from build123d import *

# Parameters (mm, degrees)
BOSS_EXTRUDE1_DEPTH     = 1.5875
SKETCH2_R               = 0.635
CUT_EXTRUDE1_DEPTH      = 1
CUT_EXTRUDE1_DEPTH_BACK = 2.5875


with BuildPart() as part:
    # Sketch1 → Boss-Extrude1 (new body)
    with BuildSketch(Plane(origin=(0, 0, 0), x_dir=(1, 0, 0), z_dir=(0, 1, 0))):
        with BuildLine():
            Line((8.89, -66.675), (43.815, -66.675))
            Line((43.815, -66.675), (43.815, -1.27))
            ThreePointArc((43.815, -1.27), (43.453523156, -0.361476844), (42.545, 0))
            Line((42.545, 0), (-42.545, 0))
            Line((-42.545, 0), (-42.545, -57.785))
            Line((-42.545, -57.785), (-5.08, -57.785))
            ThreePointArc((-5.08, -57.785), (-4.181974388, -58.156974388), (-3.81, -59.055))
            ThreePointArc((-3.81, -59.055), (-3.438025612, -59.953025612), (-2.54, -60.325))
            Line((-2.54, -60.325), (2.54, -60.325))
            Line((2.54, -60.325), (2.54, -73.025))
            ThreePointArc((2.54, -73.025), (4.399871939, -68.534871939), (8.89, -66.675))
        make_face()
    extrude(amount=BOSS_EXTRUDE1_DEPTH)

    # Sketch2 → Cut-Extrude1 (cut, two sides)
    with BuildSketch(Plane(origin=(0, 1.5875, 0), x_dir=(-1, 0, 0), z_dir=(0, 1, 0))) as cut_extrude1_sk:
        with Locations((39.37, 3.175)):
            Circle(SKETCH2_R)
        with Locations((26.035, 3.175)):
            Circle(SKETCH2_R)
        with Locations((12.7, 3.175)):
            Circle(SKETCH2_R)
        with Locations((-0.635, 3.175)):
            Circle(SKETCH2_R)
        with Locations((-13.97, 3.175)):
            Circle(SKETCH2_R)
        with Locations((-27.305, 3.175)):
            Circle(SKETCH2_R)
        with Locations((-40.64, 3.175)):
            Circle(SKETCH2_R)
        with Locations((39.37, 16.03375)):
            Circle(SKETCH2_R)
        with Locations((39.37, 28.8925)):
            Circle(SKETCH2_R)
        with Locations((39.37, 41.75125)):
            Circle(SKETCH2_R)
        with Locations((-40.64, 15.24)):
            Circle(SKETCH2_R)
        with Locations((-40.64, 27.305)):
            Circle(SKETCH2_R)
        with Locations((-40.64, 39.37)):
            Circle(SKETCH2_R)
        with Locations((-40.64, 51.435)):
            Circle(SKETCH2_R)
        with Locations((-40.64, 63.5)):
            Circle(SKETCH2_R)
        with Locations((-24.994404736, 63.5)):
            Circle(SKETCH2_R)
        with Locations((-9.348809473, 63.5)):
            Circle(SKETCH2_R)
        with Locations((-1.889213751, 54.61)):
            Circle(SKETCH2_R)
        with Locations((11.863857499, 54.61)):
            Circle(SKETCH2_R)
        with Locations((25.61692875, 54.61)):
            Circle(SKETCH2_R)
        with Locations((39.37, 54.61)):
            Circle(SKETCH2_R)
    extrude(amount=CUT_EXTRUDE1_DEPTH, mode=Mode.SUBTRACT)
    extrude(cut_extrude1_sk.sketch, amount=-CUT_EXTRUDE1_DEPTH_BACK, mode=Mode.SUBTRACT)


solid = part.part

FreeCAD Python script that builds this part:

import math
import FreeCAD as App
import Part
import Sketcher
Q = App.Units.Quantity

doc = App.newDocument("Part")
body = doc.addObject("PartDesign::Body", "Body")

sketch1 = body.newObject("Sketcher::SketchObject", "Sketch")
sketch1.AttachmentSupport = (doc.getObject("XZ_Plane"), [""])
sketch1.MapMode = "FlatFace"
sketch1.addGeometry(Part.LineSegment(App.Vector(8.9, 66.7, 0), App.Vector(43.8, 66.7, 0)), False)
sketch1.addGeometry(Part.LineSegment(App.Vector(43.8, 66.7, 0), App.Vector(43.8, 1.3, 0)), False)
sketch1.addGeometry(Part.ArcOfCircle(Part.Circle(App.Vector(42.6, 1.2, 0), App.Vector(0, 0, 1), 1.2), math.radians(-92), math.radians(2)), False)
sketch1.addGeometry(Part.LineSegment(App.Vector(42.5, 0, 0), App.Vector(-42.5, 0, 0)), False)
sketch1.addGeometry(Part.LineSegment(App.Vector(-42.5, 0, 0), App.Vector(-42.5, 57.8, 0)), False)
sketch1.addGeometry(Part.LineSegment(App.Vector(-42.5, 57.8, 0), App.Vector(-5.1, 57.8, 0)), False)
sketch1.addGeometry(Part.ArcOfCircle(Part.Circle(App.Vector(-5.1, 59.1, 0), App.Vector(0, 0, 1), 1.3), math.radians(-90), math.radians(0)), False)
sketch1.addGeometry(Part.ArcOfCircle(Part.Circle(App.Vector(-2.5, 59.1, 0), App.Vector(0, 0, 1), 1.3), math.radians(90), math.radians(180)), False)
sketch1.addGeometry(Part.LineSegment(App.Vector(-2.5, 60.3, 0), App.Vector(2.5, 60.3, 0)), False)
sketch1.addGeometry(Part.LineSegment(App.Vector(2.5, 60.3, 0), App.Vector(2.5, 73, 0)), False)
sketch1.addGeometry(Part.ArcOfCircle(Part.Circle(App.Vector(8.9, 73, 0), App.Vector(0, 0, 1), 6.3), math.radians(180), math.radians(270)), False)
sketch1.addConstraint(Sketcher.Constraint("Coincident", 0, 2, 1, 1))
sketch1.addConstraint(Sketcher.Constraint("Coincident", 1, 2, 2, 2))
sketch1.addConstraint(Sketcher.Constraint("Coincident", 2, 1, 3, 1))
sketch1.addConstraint(Sketcher.Constraint("Coincident", 3, 2, 4, 1))
sketch1.addConstraint(Sketcher.Constraint("Coincident", 4, 2, 5, 1))
sketch1.addConstraint(Sketcher.Constraint("Tangent", 5, 2, 6, 1))
sketch1.addConstraint(Sketcher.Constraint("Tangent", 6, 2, 7, 2))
sketch1.addConstraint(Sketcher.Constraint("Tangent", 7, 1, 8, 1))
sketch1.addConstraint(Sketcher.Constraint("Coincident", 8, 2, 9, 1))
sketch1.addConstraint(Sketcher.Constraint("Tangent", 9, 2, 10, 1))
sketch1.addConstraint(Sketcher.Constraint("Tangent", 10, 2, 0, 1))
sketch1.addConstraint(Sketcher.Constraint("Horizontal", 0))
sketch1.addConstraint(Sketcher.Constraint("Vertical", 1))
sketch1.addConstraint(Sketcher.Constraint("Horizontal", 3))
sketch1.addConstraint(Sketcher.Constraint("Vertical", 4))
sketch1.addConstraint(Sketcher.Constraint("Horizontal", 5))
sketch1.addConstraint(Sketcher.Constraint("Horizontal", 8))
sketch1.addConstraint(Sketcher.Constraint("Vertical", 9))
sketch1.addConstraint(Sketcher.Constraint("Equal", 6, 7))
sketch1.addConstraint(Sketcher.Constraint("Symmetric", 2, 1, 3, 2, -1, 1))
sketch1.addConstraint(Sketcher.Constraint("Horizontal", 6, 3, 7, 3))
sketch1.addConstraint(Sketcher.Constraint("Radius", 6, Q("0.05 in")))
sketch1.addConstraint(Sketcher.Constraint("Radius", 10, Q("0.25 in")))
sketch1.addConstraint(Sketcher.Constraint("DistanceX", 8, 1, 8, 2, Q("0.2 in")))
sketch1.addConstraint(Sketcher.Constraint("DistanceY", 9, 1, 9, 2, Q("0.5 in")))
sketch1.addConstraint(Sketcher.Constraint("DistanceX", 3, 2, 3, 1, Q("3.35 in")))
sketch1.addConstraint(Sketcher.Constraint("DistanceX", 6, 3, -1, 1, Q("0.2 in")))
sketch1.addConstraint(Sketcher.Constraint("DistanceX", 3, 2, 1, 2, Q("3.4 in")))
sketch1.addConstraint(Sketcher.Constraint("DistanceY", 1, 2, 1, 1, Q("2.575 in")))
sketch1.addConstraint(Sketcher.Constraint("DistanceY", 4, 1, 4, 2, Q("2.275 in")))
sketch1.addConstraint(Sketcher.Constraint("Radius", 2, Q("1.23582 mm")))
pad1 = body.newObject("PartDesign::Pad", "Pad")
pad1.Profile = sketch1
pad1.Length = Q("0.0625 in")
pad1.Reversed = True

sketch2 = body.newObject("Sketcher::SketchObject", "Sketch001")
sketch2.AttachmentSupport = (doc.getObject("XZ_Plane"), [""])
sketch2.MapMode = "FlatFace"
sketch2.AttachmentOffset = App.Placement(App.Vector(0, 0, -0.0625 * 25.4), App.Rotation())
sketch2.addGeometry(Part.Circle(App.Vector(-39.4, 3.2, 0), App.Vector(0, 0, 1), 0.6), False)
sketch2.addGeometry(Part.Circle(App.Vector(-26, 3.2, 0), App.Vector(0, 0, 1), 0.6), False)
sketch2.addGeometry(Part.Circle(App.Vector(-12.7, 3.2, 0), App.Vector(0, 0, 1), 0.6), False)
sketch2.addGeometry(Part.Circle(App.Vector(0.6, 3.2, 0), App.Vector(0, 0, 1), 0.6), False)
sketch2.addGeometry(Part.Circle(App.Vector(14, 3.2, 0), App.Vector(0, 0, 1), 0.6), False)
sketch2.addGeometry(Part.Circle(App.Vector(27.3, 3.2, 0), App.Vector(0, 0, 1), 0.6), False)
sketch2.addGeometry(Part.Circle(App.Vector(40.6, 3.2, 0), App.Vector(0, 0, 1), 0.6), False)
sketch2.addGeometry(Part.Circle(App.Vector(-39.4, 16, 0), App.Vector(0, 0, 1), 0.6), False)
sketch2.addGeometry(Part.Circle(App.Vector(-39.4, 28.9, 0), App.Vector(0, 0, 1), 0.6), False)
sketch2.addGeometry(Part.Circle(App.Vector(-39.4, 41.8, 0), App.Vector(0, 0, 1), 0.6), False)
sketch2.addGeometry(Part.Circle(App.Vector(40.6, 15.2, 0), App.Vector(0, 0, 1), 0.6), False)
sketch2.addGeometry(Part.Circle(App.Vector(40.6, 27.3, 0), App.Vector(0, 0, 1), 0.6), False)
sketch2.addGeometry(Part.Circle(App.Vector(40.6, 39.4, 0), App.Vector(0, 0, 1), 0.6), False)
sketch2.addGeometry(Part.Circle(App.Vector(40.6, 51.4, 0), App.Vector(0, 0, 1), 0.6), False)
sketch2.addGeometry(Part.Circle(App.Vector(40.6, 63.5, 0), App.Vector(0, 0, 1), 0.6), False)
sketch2.addGeometry(Part.Circle(App.Vector(25, 63.5, 0), App.Vector(0, 0, 1), 0.6), False)
sketch2.addGeometry(Part.Circle(App.Vector(9.3, 63.5, 0), App.Vector(0, 0, 1), 0.6), False)
sketch2.addGeometry(Part.Circle(App.Vector(1.9, 54.6, 0), App.Vector(0, 0, 1), 0.6), False)
sketch2.addGeometry(Part.Circle(App.Vector(-11.9, 54.6, 0), App.Vector(0, 0, 1), 0.6), False)
sketch2.addGeometry(Part.Circle(App.Vector(-25.6, 54.6, 0), App.Vector(0, 0, 1), 0.6), False)
sketch2.addGeometry(Part.Circle(App.Vector(-39.4, 54.6, 0), App.Vector(0, 0, 1), 0.6), False)
sketch2.addConstraint(Sketcher.Constraint("Equal", 0, 1))
sketch2.addConstraint(Sketcher.Constraint("Equal", 1, 2))
sketch2.addConstraint(Sketcher.Constraint("Equal", 2, 3))
sketch2.addConstraint(Sketcher.Constraint("Equal", 3, 4))
sketch2.addConstraint(Sketcher.Constraint("Equal", 4, 5))
sketch2.addConstraint(Sketcher.Constraint("Equal", 5, 6))
sketch2.addConstraint(Sketcher.Constraint("Equal", 6, 7))
sketch2.addConstraint(Sketcher.Constraint("Equal", 7, 8))
sketch2.addConstraint(Sketcher.Constraint("Equal", 8, 9))
sketch2.addConstraint(Sketcher.Constraint("Equal", 9, 10))
sketch2.addConstraint(Sketcher.Constraint("Equal", 10, 11))
sketch2.addConstraint(Sketcher.Constraint("Equal", 11, 12))
sketch2.addConstraint(Sketcher.Constraint("Equal", 12, 13))
sketch2.addConstraint(Sketcher.Constraint("Equal", 13, 14))
sketch2.addConstraint(Sketcher.Constraint("Equal", 14, 15))
sketch2.addConstraint(Sketcher.Constraint("Equal", 15, 16))
sketch2.addConstraint(Sketcher.Constraint("Equal", 16, 17))
sketch2.addConstraint(Sketcher.Constraint("Equal", 17, 18))
sketch2.addConstraint(Sketcher.Constraint("Equal", 18, 19))
sketch2.addConstraint(Sketcher.Constraint("Equal", 19, 20))
sketch2.addConstraint(Sketcher.Constraint("Horizontal", 0, 3, 1, 3))
sketch2.addConstraint(Sketcher.Constraint("Horizontal", 1, 3, 2, 3))
sketch2.addConstraint(Sketcher.Constraint("Horizontal", 2, 3, 3, 3))
sketch2.addConstraint(Sketcher.Constraint("Horizontal", 3, 3, 4, 3))
sketch2.addConstraint(Sketcher.Constraint("Horizontal", 4, 3, 5, 3))
sketch2.addConstraint(Sketcher.Constraint("Horizontal", 5, 3, 6, 3))
sketch2.addConstraint(Sketcher.Constraint("Horizontal", 14, 3, 15, 3))
sketch2.addConstraint(Sketcher.Constraint("Horizontal", 15, 3, 16, 3))
sketch2.addConstraint(Sketcher.Constraint("Horizontal", 17, 3, 18, 3))
sketch2.addConstraint(Sketcher.Constraint("Horizontal", 18, 3, 19, 3))
sketch2.addConstraint(Sketcher.Constraint("Horizontal", 19, 3, 20, 3))
sketch2.addConstraint(Sketcher.Constraint("Vertical", 0, 3, 7, 3))
sketch2.addConstraint(Sketcher.Constraint("Vertical", 7, 3, 8, 3))
sketch2.addConstraint(Sketcher.Constraint("Vertical", 8, 3, 9, 3))
sketch2.addConstraint(Sketcher.Constraint("Vertical", 6, 3, 10, 3))
sketch2.addConstraint(Sketcher.Constraint("Vertical", 10, 3, 11, 3))
sketch2.addConstraint(Sketcher.Constraint("Vertical", 11, 3, 12, 3))
sketch2.addConstraint(Sketcher.Constraint("Vertical", 12, 3, 13, 3))
sketch2.addConstraint(Sketcher.Constraint("Vertical", 13, 3, 14, 3))
sketch2.addConstraint(Sketcher.Constraint("Vertical", 9, 3, 20, 3))
sketch2.addConstraint(Sketcher.Constraint("Diameter", 0, Q("0.05 in")))
sketch2.addConstraint(Sketcher.Constraint("DistanceX", 2, 3, -1, 1, Q("0.5 in")))
sketch2.addConstraint(Sketcher.Constraint("DistanceX", -1, 1, 6, 3, Q("1.6 in")))
sketch2.addConstraint(Sketcher.Constraint("DistanceY", -1, 1, 10, 3, Q("0.6 in")))
sketch2.addConstraint(Sketcher.Constraint("DistanceY", -1, 1, 14, 3, Q("2.5 in")))
sketch2.addConstraint(Sketcher.Constraint("DistanceX", 0, 3, 4, 3, Q("2.1 in")))
sketch2.addConstraint(Sketcher.Constraint("DistanceX", 1, 3, 5, 3, Q("2.1 in")))
sketch2.addConstraint(Sketcher.Constraint("DistanceY", 6, 3, 13, 3, Q("1.9 in")))
sketch2.addConstraint(Sketcher.Constraint("DistanceY", 12, 3, 17, 3, Q("0.6 in")))
sketch2.addConstraint(Sketcher.Constraint("DistanceX", 0, 3, -1, 1, Q("1.55 in")))
sketch2.addConstraint(Sketcher.Constraint("DistanceY", -1, 1, 12, 3, Q("1.55 in")))
sketch2.addConstraint(Sketcher.Constraint("DistanceX", 1, 3, 3, 3, Q("1.05 in")))
sketch2.addConstraint(Sketcher.Constraint("DistanceY", 6, 3, 11, 3, Q("0.95 in")))
sketch2.addConstraint(Sketcher.Constraint("DistanceY", -1, 1, 0, 3, Q("0.125 in")))
sketch2.addConstraint(Sketcher.Constraint("DistanceX", 1, 3, -1, 1, Q("1.025 in")))
sketch2.addConstraint(Sketcher.Constraint("DistanceY", -1, 1, 8, 3, Q("1.1375 in")))
sketch2.addConstraint(Sketcher.Constraint("DistanceY", 7, 3, 9, 3, Q("1.0125 in")))
sketch2.addConstraint(Sketcher.Constraint("DistanceY", -1, 1, 7, 3, Q("16.03375 mm")))
sketch2.addConstraint(Sketcher.Constraint("DistanceX", -1, 1, 16, 3, Q("9.348809 mm")))
sketch2.addConstraint(Sketcher.Constraint("DistanceX", 19, 3, -1, 1, Q("25.616929 mm")))
sketch2.addConstraint(Sketcher.Constraint("DistanceX", 17, 3, 15, 3, Q("23.105191 mm")))
sketch2.addConstraint(Sketcher.Constraint("DistanceX", 18, 3, 17, 3, Q("13.753071 mm")))
sketch2.addConstraint(Sketcher.Constraint("DistanceX", 19, 3, 18, 3, Q("13.753071 mm")))
pocket1 = body.newObject("PartDesign::Pocket", "Pocket")
pocket1.Profile = sketch2
pocket1.Type = "ThroughAll"
pocket1.Midplane = True

doc.recompute()
